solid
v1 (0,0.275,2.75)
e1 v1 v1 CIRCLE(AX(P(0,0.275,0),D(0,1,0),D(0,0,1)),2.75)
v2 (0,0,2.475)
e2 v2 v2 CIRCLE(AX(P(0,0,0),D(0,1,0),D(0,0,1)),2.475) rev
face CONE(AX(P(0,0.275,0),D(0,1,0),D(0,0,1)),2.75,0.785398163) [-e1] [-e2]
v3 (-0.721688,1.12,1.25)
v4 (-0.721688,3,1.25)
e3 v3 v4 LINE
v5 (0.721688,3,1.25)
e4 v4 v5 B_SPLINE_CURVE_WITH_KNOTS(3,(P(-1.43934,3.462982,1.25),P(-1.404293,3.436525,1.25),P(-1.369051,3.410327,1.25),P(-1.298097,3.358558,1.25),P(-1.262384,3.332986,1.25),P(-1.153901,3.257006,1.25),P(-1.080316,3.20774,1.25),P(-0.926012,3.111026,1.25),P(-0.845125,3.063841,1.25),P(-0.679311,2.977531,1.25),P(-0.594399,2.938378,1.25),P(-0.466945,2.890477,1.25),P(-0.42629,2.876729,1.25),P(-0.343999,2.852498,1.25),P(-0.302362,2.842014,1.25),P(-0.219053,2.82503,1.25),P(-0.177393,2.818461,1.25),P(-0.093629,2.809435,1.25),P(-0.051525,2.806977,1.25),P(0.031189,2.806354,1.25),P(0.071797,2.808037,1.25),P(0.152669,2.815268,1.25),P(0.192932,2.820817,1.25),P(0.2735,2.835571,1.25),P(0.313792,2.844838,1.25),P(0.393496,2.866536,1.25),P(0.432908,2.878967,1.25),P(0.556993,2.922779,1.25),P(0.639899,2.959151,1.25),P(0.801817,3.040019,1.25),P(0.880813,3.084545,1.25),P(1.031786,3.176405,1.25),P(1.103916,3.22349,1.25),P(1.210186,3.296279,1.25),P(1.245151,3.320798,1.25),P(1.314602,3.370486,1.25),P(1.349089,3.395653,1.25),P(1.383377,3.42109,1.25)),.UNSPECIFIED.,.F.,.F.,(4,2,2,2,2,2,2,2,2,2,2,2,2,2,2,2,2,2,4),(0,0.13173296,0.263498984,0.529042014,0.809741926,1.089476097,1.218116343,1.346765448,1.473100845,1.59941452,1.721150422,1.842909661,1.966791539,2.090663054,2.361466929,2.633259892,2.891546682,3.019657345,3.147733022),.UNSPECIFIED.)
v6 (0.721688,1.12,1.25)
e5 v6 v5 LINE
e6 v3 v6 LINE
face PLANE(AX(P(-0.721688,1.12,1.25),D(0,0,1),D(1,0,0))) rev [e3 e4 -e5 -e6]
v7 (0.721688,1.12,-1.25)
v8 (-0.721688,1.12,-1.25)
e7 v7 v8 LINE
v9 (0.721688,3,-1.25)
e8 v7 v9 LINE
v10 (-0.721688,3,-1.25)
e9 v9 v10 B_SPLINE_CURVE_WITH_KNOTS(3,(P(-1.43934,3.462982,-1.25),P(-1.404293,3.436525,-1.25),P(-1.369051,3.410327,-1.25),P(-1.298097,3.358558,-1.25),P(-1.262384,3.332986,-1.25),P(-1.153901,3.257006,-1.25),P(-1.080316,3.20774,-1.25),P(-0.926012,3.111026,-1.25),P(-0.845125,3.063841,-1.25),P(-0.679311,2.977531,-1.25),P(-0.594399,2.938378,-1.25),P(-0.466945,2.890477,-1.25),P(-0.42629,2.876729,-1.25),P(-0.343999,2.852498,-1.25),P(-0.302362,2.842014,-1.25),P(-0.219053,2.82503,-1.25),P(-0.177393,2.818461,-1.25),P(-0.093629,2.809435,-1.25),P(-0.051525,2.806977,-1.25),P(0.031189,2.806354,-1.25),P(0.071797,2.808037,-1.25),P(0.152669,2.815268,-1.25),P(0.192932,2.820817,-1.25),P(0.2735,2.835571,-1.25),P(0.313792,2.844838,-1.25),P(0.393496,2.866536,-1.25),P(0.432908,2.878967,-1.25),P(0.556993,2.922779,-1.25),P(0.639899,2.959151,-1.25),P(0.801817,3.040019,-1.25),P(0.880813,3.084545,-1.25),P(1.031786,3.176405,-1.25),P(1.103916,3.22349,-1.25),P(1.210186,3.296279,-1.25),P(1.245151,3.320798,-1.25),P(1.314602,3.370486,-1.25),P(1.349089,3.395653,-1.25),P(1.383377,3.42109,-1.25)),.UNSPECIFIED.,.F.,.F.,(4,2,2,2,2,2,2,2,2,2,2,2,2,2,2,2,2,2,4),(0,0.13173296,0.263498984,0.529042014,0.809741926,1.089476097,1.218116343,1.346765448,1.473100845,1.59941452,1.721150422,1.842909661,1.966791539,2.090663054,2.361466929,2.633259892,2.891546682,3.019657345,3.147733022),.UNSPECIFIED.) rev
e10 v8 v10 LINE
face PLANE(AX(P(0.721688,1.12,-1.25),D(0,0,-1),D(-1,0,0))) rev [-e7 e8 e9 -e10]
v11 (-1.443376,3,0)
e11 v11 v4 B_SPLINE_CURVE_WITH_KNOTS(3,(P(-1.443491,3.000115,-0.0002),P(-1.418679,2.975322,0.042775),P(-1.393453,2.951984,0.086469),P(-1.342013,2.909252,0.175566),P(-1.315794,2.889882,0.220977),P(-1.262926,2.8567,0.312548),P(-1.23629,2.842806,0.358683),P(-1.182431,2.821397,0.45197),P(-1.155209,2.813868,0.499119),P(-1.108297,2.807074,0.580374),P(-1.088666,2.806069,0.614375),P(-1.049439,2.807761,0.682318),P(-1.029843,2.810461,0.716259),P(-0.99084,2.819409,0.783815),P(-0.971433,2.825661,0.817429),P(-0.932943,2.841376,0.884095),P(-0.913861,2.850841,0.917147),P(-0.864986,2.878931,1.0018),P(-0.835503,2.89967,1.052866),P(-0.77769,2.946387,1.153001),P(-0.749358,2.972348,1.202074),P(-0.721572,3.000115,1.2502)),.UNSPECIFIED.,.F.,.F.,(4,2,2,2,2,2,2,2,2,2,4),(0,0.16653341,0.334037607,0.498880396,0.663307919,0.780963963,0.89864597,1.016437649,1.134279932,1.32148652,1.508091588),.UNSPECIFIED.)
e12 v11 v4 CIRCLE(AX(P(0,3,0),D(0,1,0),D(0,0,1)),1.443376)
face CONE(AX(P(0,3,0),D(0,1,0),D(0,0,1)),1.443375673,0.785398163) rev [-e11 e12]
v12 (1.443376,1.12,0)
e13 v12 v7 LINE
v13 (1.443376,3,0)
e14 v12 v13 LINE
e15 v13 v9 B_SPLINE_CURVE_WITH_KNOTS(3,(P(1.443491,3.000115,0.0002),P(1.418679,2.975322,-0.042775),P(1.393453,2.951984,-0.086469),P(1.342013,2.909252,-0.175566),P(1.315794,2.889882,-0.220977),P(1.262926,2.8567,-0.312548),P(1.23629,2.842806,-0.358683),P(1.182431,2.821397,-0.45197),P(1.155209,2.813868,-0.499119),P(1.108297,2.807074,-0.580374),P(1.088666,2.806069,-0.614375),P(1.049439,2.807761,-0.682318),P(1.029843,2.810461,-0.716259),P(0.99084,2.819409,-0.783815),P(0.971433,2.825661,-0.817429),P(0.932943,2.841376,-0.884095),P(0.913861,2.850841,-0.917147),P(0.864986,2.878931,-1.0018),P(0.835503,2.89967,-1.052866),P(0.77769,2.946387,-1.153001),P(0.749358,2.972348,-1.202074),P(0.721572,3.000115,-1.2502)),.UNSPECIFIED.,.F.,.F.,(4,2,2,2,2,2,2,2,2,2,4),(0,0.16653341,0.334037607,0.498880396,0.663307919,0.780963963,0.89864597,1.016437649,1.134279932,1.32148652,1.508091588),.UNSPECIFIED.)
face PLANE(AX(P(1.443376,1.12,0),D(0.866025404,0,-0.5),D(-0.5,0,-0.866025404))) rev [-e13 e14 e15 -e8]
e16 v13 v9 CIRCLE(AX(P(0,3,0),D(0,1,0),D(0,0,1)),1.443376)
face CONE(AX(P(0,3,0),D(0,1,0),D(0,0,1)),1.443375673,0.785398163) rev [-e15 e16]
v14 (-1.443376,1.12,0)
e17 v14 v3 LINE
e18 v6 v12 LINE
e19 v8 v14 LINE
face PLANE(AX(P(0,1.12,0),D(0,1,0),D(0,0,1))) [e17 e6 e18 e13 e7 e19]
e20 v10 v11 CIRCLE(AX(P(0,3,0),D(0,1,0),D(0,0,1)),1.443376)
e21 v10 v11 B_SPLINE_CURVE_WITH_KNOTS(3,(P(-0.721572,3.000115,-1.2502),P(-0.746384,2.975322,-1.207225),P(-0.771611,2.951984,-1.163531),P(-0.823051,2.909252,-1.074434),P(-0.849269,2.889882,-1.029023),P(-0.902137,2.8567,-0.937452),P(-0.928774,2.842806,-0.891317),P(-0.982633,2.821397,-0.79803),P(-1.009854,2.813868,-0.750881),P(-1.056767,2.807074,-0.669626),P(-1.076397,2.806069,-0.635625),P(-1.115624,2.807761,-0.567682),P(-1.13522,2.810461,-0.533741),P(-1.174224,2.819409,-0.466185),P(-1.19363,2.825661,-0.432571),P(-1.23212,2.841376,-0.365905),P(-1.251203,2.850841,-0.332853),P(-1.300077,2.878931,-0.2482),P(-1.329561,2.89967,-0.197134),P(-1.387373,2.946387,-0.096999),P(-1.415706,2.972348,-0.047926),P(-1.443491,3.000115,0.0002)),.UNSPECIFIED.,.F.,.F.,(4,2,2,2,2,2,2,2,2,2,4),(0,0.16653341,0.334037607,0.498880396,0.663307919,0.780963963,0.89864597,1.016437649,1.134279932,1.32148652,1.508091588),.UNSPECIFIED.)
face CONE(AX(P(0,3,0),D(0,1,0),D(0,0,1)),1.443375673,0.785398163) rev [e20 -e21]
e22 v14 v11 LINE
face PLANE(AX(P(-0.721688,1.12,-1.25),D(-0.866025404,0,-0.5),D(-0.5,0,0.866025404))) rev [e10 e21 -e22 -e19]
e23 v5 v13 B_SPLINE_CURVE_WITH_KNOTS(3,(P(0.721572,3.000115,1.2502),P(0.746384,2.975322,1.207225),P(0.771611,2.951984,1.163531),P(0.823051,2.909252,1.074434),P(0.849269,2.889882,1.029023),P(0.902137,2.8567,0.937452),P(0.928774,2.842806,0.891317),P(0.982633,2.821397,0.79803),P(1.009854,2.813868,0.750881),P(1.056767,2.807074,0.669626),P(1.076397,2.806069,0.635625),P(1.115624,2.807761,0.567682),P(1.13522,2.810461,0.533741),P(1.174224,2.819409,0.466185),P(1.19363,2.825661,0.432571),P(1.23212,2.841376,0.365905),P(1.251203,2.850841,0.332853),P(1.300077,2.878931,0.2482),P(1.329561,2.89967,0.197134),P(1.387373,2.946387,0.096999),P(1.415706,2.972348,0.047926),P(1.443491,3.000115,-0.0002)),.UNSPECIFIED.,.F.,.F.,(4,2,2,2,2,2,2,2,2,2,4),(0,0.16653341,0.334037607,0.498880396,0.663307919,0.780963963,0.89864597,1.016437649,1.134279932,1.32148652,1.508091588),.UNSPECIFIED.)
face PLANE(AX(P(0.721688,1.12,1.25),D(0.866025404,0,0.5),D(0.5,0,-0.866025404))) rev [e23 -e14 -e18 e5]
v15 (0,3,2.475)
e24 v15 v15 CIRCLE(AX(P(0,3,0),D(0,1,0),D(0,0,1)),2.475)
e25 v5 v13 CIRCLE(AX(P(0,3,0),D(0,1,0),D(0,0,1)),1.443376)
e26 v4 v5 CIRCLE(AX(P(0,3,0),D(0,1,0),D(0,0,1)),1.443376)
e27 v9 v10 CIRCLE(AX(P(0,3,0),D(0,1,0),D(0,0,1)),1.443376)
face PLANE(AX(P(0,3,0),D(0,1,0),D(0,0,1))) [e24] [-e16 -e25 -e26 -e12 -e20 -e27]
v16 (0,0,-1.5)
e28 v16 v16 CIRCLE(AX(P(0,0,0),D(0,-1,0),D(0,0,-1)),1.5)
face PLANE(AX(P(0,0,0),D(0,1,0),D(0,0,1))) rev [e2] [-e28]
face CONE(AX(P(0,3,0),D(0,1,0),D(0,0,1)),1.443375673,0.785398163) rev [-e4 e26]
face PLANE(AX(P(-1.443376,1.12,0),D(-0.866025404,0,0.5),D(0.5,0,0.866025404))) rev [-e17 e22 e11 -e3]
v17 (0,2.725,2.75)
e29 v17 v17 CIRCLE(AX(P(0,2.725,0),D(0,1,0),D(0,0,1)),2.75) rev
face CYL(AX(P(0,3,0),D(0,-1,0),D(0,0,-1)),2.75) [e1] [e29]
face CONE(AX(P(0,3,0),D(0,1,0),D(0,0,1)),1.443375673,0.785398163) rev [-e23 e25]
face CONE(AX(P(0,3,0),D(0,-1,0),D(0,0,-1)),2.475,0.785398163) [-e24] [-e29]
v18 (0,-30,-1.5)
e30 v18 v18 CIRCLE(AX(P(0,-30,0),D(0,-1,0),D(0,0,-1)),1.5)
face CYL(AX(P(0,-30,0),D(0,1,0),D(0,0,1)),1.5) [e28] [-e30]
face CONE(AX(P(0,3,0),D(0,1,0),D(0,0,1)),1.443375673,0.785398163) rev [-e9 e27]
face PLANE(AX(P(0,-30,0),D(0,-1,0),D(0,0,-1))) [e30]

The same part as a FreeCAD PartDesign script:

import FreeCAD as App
import Part
import Sketcher
from FreeCAD import Vector
Q = App.Units.Quantity


def edges_at(feature, points):
    """Names of the edges that pass closest to the given points."""
    edges = feature.Shape.Edges
    near = lambda p: min(range(len(edges)), key=lambda i: edges[i].distToShape(Part.Vertex(*p))[0])
    return sorted({f"Edge{near(p) + 1}" for p in points})

doc = App.newDocument("Part")
params = doc.addObject("Spreadsheet::Sheet", "Params")
for row, (alias, value) in enumerate([
    ("sketch1_diameter", "5.5 mm"),
    ("pad1_length", "3 mm"),
    ("pocket1_length", "1.88 mm"),
    ("groove_angle", "360 deg"),
    ("chamfer_size", "0.275 mm"),
    ("sketch4_diameter", "3 mm"),
    ("pad2_length", "30 mm"),
], start=1):
    params.set(f"A{row}", alias)
    params.set(f"B{row}", "=" + value)
    params.setAlias(f"B{row}", alias)

body = doc.addObject("PartDesign::Body", "Body")

# Sketch on XZ plane
sketch1 = doc.addObject("Sketcher::SketchObject", "Sketch")
body.addObject(sketch1)
sketch1.AttachmentSupport = (doc.XZ_Plane, [""])
sketch1.MapMode = "FlatFace"
sketch1.addGeometry(Part.Circle(Vector(0, 0, 0), Vector(0, 0, 1), 2.75), False)
sketch1.addConstraint([
    Sketcher.Constraint("Coincident", 0, 3, -1, 1),
    Sketcher.Constraint("Diameter", 0, 5.5),
])
sketch1.setExpression("Constraints[1]", "Params.sketch1_diameter")
pad1 = doc.addObject("PartDesign::Pad", "Pad")
body.addObject(pad1)
pad1.Profile = sketch1
pad1.setExpression("Length", "Params.pad1_length")
pad1.Reversed = True

# Sketch on XZ plane
sketch2 = doc.addObject("Sketcher::SketchObject", "Sketch001")
body.addObject(sketch2)
sketch2.AttachmentSupport = (doc.XZ_Plane, [""])
sketch2.MapMode = "FlatFace"
sketch2.AttachmentOffset = App.Placement(Vector(0, 0, -3), App.Rotation())
sketch2.addGeometry([
    Part.LineSegment(Vector(0.721688, -1.25, 0), Vector(-0.721688, -1.25, 0)),  # 0
    Part.LineSegment(Vector(-0.721688, -1.25, 0), Vector(-1.443376, 0, 0)),  # 1
    Part.LineSegment(Vector(-1.443376, 0, 0), Vector(-0.721688, 1.25, 0)),  # 2
    Part.LineSegment(Vector(-0.721688, 1.25, 0), Vector(0.721688, 1.25, 0)),  # 3
    Part.LineSegment(Vector(0.721688, 1.25, 0), Vector(1.443376, 0, 0)),  # 4
    Part.LineSegment(Vector(1.443376, 0, 0), Vector(0.721688, -1.25, 0)),  # 5
], False)
sketch2.addConstraint([
    Sketcher.Constraint("Coincident", 0, 2, 1, 1),
    Sketcher.Constraint("Coincident", 1, 2, 2, 1),
    Sketcher.Constraint("Coincident", 2, 2, 3, 1),
    Sketcher.Constraint("Coincident", 3, 2, 4, 1),
    Sketcher.Constraint("Coincident", 4, 2, 5, 1),
    Sketcher.Constraint("Coincident", 5, 2, 0, 1),
    Sketcher.Constraint("Horizontal", 0),
    Sketcher.Constraint("Horizontal", 3),
    Sketcher.Constraint("Symmetric", 0, 2, 3, 2, -1, 1),
    Sketcher.Constraint("Symmetric", 1, 2, 4, 2, -1, 1),
    Sketcher.Constraint("PointOnObject", 1, 2, -1),
    Sketcher.Constraint("Parallel", 2, 5),
    Sketcher.Constraint("Vertical", 0, 2, 2, 2),
    Sketcher.Constraint("Angle", 1, Q("120 deg")),
    Sketcher.Constraint("DistanceY", 0, 2, 2, 2, 2.5),
    Sketcher.Constraint("DistanceX", 0, 2, 0, 1, 1.443376),
])
pocket1 = doc.addObject("PartDesign::Pocket", "Pocket")
body.addObject(pocket1)
pocket1.Profile = sketch2
pocket1.setExpression("Length", "Params.pocket1_length")
pocket1.Reversed = True

# Sketch on YZ plane
sketch3 = doc.addObject("Sketcher::SketchObject", "Sketch002")
body.addObject(sketch3)
sketch3.AttachmentSupport = (doc.YZ_Plane, [""])
sketch3.MapMode = "FlatFace"
sketch3.addGeometry([
    Part.LineSegment(Vector(3, 0, 0), Vector(3, 1.443376, 0)),
    Part.LineSegment(Vector(3, 1.443376, 0), Vector(1.556624, 0, 0)),
    Part.LineSegment(Vector(1.556624, 0, 0), Vector(3, 0, 0)),
], False)
sketch3.addConstraint([
    Sketcher.Constraint("Coincident", 0, 2, 1, 1),
    Sketcher.Constraint("Coincident", 1, 2, 2, 1),
    Sketcher.Constraint("Coincident", 2, 2, 0, 1),
    Sketcher.Constraint("Vertical", 0),
    Sketcher.Constraint("Horizontal", 2),
    Sketcher.Constraint("PointOnObject", 1, 2, -1),
    Sketcher.Constraint("Equal", 2, 0),
    Sketcher.Constraint("DistanceX", -1, 1, 0, 2, 3.0),
    Sketcher.Constraint("Distance", 1, 2.041241),
])
groove = doc.addObject("PartDesign::Groove", "Groove")
body.addObject(groove)
groove.Profile = sketch3
groove.ReferenceAxis = (sketch3, ["H_Axis"])
groove.setExpression("Angle", "Params.groove_angle")
doc.recompute()

chamfer = doc.addObject("PartDesign::Chamfer", "Chamfer")
body.addObject(chamfer)
chamfer.Base = (groove, edges_at(groove, [(0, 0, -2.75), (0, 3, -2.75)]))
chamfer.setExpression("Size", "Params.chamfer_size")

# Sketch on XZ plane
sketch4 = doc.addObject("Sketcher::SketchObject", "Sketch003")
body.addObject(sketch4)
sketch4.AttachmentSupport = (doc.XZ_Plane, [""])
sketch4.MapMode = "FlatFace"
sketch4.addGeometry(Part.Circle(Vector(0, 0, 0), Vector(0, 0, 1), 1.5), False)
sketch4.addConstraint([
    Sketcher.Constraint("Coincident", 0, 3, -1, 1),
    Sketcher.Constraint("Diameter", 0, 3.0),
])
sketch4.setExpression("Constraints[1]", "Params.sketch4_diameter")
pad2 = doc.addObject("PartDesign::Pad", "Pad001")
body.addObject(pad2)
pad2.Profile = sketch4
pad2.setExpression("Length", "Params.pad2_length")

doc.recompute()
